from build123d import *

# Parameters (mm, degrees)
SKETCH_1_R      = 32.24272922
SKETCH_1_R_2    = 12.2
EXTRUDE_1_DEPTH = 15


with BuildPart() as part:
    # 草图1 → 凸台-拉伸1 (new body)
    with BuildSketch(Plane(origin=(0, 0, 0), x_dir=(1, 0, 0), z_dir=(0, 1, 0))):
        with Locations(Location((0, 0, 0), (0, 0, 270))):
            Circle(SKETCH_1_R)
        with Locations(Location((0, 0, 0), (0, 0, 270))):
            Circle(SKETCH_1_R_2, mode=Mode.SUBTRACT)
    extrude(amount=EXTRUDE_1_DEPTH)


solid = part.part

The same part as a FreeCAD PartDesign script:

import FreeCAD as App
import Part
import Sketcher
from FreeCAD import Vector

doc = App.newDocument("Part")
params = doc.addObject("Spreadsheet::Sheet", "Params")
for row, (alias, value) in enumerate([
    ("sketch1_diameter", "24.4 mm"),
    ("pad1_length", "15 mm"),
], start=1):
    params.set(f"A{row}", alias)
    params.set(f"B{row}", "=" + value)
    params.setAlias(f"B{row}", alias)

body = doc.addObject("PartDesign::Body", "Body")

sketch1 = doc.addObject("Sketcher::SketchObject", "Sketch")
body.addObject(sketch1)
sketch1.AttachmentSupport = (doc.XZ_Plane, [""])
sketch1.MapMode = "FlatFace"
sketch1.addGeometry([
    Part.Circle(Vector(0, 0, 0), Vector(0, 0, 1), 32),
    Part.Circle(Vector(0, 0, 0), Vector(0, 0, 1), 12),
], False)
sketch1.addConstraint([
    Sketcher.Constraint("Coincident", 0, 3, -1, 1),
    Sketcher.Constraint("Coincident", 1, 3, -1, 1),
    Sketcher.Constraint("Diameter", 1, 24.4),
    Sketcher.Constraint("Diameter", 0, 64.485458),
])
sketch1.setExpression("Constraints[2]", "Params.sketch1_diameter")
pad1 = doc.addObject("PartDesign::Pad", "Pad")
body.addObject(pad1)
pad1.Profile = sketch1
pad1.setExpression("Length", "Params.pad1_length")
pad1.Reversed = True

doc.recompute()
